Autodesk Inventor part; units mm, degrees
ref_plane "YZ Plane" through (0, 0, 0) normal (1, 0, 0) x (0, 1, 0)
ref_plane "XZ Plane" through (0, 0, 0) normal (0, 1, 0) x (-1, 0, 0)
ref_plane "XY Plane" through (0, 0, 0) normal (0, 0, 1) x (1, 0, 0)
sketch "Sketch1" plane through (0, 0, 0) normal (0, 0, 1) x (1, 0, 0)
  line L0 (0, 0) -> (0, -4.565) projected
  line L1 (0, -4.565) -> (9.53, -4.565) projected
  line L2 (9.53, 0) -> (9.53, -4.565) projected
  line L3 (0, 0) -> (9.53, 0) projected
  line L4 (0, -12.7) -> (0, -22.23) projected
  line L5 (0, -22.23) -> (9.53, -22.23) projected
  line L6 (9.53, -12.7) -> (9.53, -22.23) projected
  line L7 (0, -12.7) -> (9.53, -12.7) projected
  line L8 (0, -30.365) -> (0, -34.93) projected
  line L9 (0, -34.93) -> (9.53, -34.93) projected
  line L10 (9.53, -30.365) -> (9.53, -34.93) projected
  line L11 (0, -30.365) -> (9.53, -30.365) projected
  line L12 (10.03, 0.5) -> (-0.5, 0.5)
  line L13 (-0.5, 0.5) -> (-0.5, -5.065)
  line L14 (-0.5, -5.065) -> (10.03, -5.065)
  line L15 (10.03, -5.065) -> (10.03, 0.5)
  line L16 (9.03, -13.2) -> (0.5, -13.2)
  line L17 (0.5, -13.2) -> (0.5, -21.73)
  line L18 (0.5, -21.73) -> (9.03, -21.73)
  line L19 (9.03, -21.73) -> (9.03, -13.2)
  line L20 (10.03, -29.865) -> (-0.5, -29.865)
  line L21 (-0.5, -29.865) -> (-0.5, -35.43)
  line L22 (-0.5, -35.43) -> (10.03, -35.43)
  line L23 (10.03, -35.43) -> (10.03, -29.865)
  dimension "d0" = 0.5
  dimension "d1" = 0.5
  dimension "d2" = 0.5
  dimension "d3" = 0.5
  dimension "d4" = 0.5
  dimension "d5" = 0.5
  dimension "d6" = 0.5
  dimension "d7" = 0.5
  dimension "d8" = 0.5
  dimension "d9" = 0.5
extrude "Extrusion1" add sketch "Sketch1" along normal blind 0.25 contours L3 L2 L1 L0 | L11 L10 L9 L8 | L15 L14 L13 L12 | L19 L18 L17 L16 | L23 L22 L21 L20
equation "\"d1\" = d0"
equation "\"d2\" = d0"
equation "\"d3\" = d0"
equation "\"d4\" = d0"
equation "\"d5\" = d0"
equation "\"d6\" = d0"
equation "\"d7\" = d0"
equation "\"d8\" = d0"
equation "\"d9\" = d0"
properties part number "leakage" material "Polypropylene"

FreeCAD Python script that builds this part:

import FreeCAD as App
import Part
import Sketcher
from FreeCAD import Vector

doc = App.newDocument("Part")
params = doc.addObject("Spreadsheet::Sheet", "Params")
for row, (alias, value) in enumerate([
    ("sketch1_width", "10.53 mm"),
    ("pad1_length", "0.25 mm"),
], start=1):
    params.set(f"A{row}", alias)
    params.set(f"B{row}", "=" + value)
    params.setAlias(f"B{row}", alias)

body = doc.addObject("PartDesign::Body", "Body")
body.AllowCompound = True

sketch1 = body.newObject("Sketcher::SketchObject", "Sketch")
sketch1.AttachmentSupport = (doc.getObject("XY_Plane"), [""])
sketch1.MapMode = "FlatFace"
sketch1.addGeometry(Part.LineSegment(Vector(10.03, -5.065, 0), Vector(10.03, 0.5, 0)), False)
sketch1.addGeometry(Part.LineSegment(Vector(10.03, 0.5, 0), Vector(-0.5, 0.5, 0)), False)
sketch1.addGeometry(Part.LineSegment(Vector(-0.5, 0.5, 0), Vector(-0.5, -5.065, 0)), False)
sketch1.addGeometry(Part.LineSegment(Vector(-0.5, -5.065, 0), Vector(10.03, -5.065, 0)), False)
sketch1.addGeometry(Part.LineSegment(Vector(10.03, -35.43, 0), Vector(10.03, -29.865, 0)), False)
sketch1.addGeometry(Part.LineSegment(Vector(10.03, -29.865, 0), Vector(-0.5, -29.865, 0)), False)
sketch1.addGeometry(Part.LineSegment(Vector(-0.5, -29.865, 0), Vector(-0.5, -35.43, 0)), False)
sketch1.addGeometry(Part.LineSegment(Vector(-0.5, -35.43, 0), Vector(10.03, -35.43, 0)), False)
sketch1.addGeometry(Part.LineSegment(Vector(9.03, -21.73, 0), Vector(9.03, -13.2, 0)), False)
sketch1.addGeometry(Part.LineSegment(Vector(9.03, -13.2, 0), Vector(0.5, -13.2, 0)), False)
sketch1.addGeometry(Part.LineSegment(Vector(0.5, -13.2, 0), Vector(0.5, -21.73, 0)), False)
sketch1.addGeometry(Part.LineSegment(Vector(0.5, -21.73, 0), Vector(9.03, -21.73, 0)), False)
sketch1.addConstraint(Sketcher.Constraint("Coincident", 0, 2, 1, 1))
sketch1.addConstraint(Sketcher.Constraint("Coincident", 1, 2, 2, 1))
sketch1.addConstraint(Sketcher.Constraint("Coincident", 2, 2, 3, 1))
sketch1.addConstraint(Sketcher.Constraint("Coincident", 3, 2, 0, 1))
sketch1.addConstraint(Sketcher.Constraint("Coincident", 4, 2, 5, 1))
sketch1.addConstraint(Sketcher.Constraint("Coincident", 5, 2, 6, 1))
sketch1.addConstraint(Sketcher.Constraint("Coincident", 6, 2, 7, 1))
sketch1.addConstraint(Sketcher.Constraint("Coincident", 7, 2, 4, 1))
sketch1.addConstraint(Sketcher.Constraint("Coincident", 8, 2, 9, 1))
sketch1.addConstraint(Sketcher.Constraint("Coincident", 9, 2, 10, 1))
sketch1.addConstraint(Sketcher.Constraint("Coincident", 10, 2, 11, 1))
sketch1.addConstraint(Sketcher.Constraint("Coincident", 11, 2, 8, 1))
sketch1.addConstraint(Sketcher.Constraint("Vertical", 0))
sketch1.addConstraint(Sketcher.Constraint("Horizontal", 1))
sketch1.addConstraint(Sketcher.Constraint("Vertical", 2))
sketch1.addConstraint(Sketcher.Constraint("Horizontal", 3))
sketch1.addConstraint(Sketcher.Constraint("Vertical", 4))
sketch1.addConstraint(Sketcher.Constraint("Horizontal", 5))
sketch1.addConstraint(Sketcher.Constraint("Vertical", 6))
sketch1.addConstraint(Sketcher.Constraint("Horizontal", 7))
sketch1.addConstraint(Sketcher.Constraint("Vertical", 8))
sketch1.addConstraint(Sketcher.Constraint("Horizontal", 9))
sketch1.addConstraint(Sketcher.Constraint("Vertical", 10))
sketch1.addConstraint(Sketcher.Constraint("Horizontal", 11))
sketch1.addConstraint(Sketcher.Constraint("Vertical", 3, 2, 4, 2))
sketch1.addConstraint(Sketcher.Constraint("Vertical", 2, 2, 5, 2))
sketch1.addConstraint(Sketcher.Constraint("Equal", 2, 4))
sketch1.addConstraint(Sketcher.Constraint("Equal", 11, 8))
sketch1.addConstraint(Sketcher.Constraint("DistanceY", -1, 1, 0, 2, 0.5))
sketch1.addConstraint(Sketcher.Constraint("DistanceX", 1, 2, -1, 1, 0.5))
sketch1.addConstraint(Sketcher.Constraint("DistanceX", -1, 1, 9, 2, 0.5))
sketch1.addConstraint(Sketcher.Constraint("DistanceX", 8, 2, 3, 2, 1.0))
sketch1.addConstraint(Sketcher.Constraint("DistanceX", 1, 2, 1, 1, 10.53))
sketch1.addConstraint(Sketcher.Constraint("DistanceY", 8, 2, -1, 1, 13.2))
sketch1.addConstraint(Sketcher.Constraint("DistanceY", 4, 2, 3, 2, 24.8))
sketch1.addConstraint(Sketcher.Constraint("DistanceY", 6, 2, 10, 2, 13.7))
sketch1.setExpression("Constraints[32]", "Params.sketch1_width")
pad1 = body.newObject("PartDesign::Pad", "Pad")
pad1.Profile = sketch1
pad1.setExpression("Length", "Params.pad1_length")

doc.recompute()
